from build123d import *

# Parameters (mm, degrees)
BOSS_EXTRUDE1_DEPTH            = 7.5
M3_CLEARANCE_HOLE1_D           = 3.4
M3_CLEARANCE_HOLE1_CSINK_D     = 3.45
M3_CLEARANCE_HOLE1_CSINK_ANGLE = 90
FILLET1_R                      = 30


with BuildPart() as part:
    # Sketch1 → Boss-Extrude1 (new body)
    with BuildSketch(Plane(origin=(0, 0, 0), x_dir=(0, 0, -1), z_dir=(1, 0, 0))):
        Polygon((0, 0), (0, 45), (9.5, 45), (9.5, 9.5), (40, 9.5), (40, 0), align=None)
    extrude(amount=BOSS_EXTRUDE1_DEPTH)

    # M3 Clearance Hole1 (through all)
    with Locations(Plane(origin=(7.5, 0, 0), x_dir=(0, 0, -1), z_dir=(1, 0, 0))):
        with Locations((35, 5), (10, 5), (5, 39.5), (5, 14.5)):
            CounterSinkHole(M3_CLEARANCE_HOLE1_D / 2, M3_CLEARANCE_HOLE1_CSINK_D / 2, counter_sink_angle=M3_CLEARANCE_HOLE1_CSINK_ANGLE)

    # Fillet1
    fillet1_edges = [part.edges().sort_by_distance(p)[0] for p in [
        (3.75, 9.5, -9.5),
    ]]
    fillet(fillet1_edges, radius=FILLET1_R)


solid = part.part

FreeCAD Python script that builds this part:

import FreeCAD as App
import Part
import Sketcher

V = App.Vector


def edges_at(feature, points):
    """Names of the edges that pass closest to the given points."""
    edges = feature.Shape.Edges
    near = lambda p: min(range(len(edges)), key=lambda i: edges[i].distToShape(Part.Vertex(*p))[0])
    return sorted({f"Edge{near(p) + 1}" for p in points})

doc = App.newDocument("Part")
body = doc.addObject("PartDesign::Body", "Body")

sketch1 = doc.addObject("Sketcher::SketchObject", "Sketch")
body.addObject(sketch1)
sketch1.AttachmentSupport = (doc.YZ_Plane, [""])
sketch1.MapMode = "FlatFace"
sketch1.addGeometry(Part.LineSegment(V(45, 0, 0), V(0, 0, 0)), False)
sketch1.addGeometry(Part.LineSegment(V(0, 0, 0), V(0, -40, 0)), False)
sketch1.addGeometry(Part.LineSegment(V(0, -40, 0), V(10, -40, 0)), False)
sketch1.addGeometry(Part.LineSegment(V(10, -40, 0), V(10, -10, 0)), False)
sketch1.addGeometry(Part.LineSegment(V(10, -10, 0), V(45, -10, 0)), False)
sketch1.addGeometry(Part.LineSegment(V(45, -10, 0), V(45, 0, 0)), False)
sketch1.addConstraint(Sketcher.Constraint("Coincident", 0, 2, 1, 1))
sketch1.addConstraint(Sketcher.Constraint("Coincident", 1, 2, 2, 1))
sketch1.addConstraint(Sketcher.Constraint("Coincident", 2, 2, 3, 1))
sketch1.addConstraint(Sketcher.Constraint("Coincident", 3, 2, 4, 1))
sketch1.addConstraint(Sketcher.Constraint("Coincident", 4, 2, 5, 1))
sketch1.addConstraint(Sketcher.Constraint("Coincident", 5, 2, 0, 1))
sketch1.addConstraint(Sketcher.Constraint("Horizontal", 0))
sketch1.addConstraint(Sketcher.Constraint("Vertical", 1))
sketch1.addConstraint(Sketcher.Constraint("Horizontal", 2))
sketch1.addConstraint(Sketcher.Constraint("Vertical", 3))
sketch1.addConstraint(Sketcher.Constraint("Horizontal", 4))
sketch1.addConstraint(Sketcher.Constraint("Vertical", 5))
sketch1.addConstraint(Sketcher.Constraint("Coincident", 0, 2, -1, 1))
sketch1.addConstraint(Sketcher.Constraint("Equal", 2, 5))
sketch1.addConstraint(Sketcher.Constraint("DistanceX", 0, 2, 0, 1, 45.0))
sketch1.addConstraint(Sketcher.Constraint("DistanceY", 1, 2, 1, 1, 40.0))
sketch1.addConstraint(Sketcher.Constraint("DistanceX", 2, 1, 2, 2, 9.5))
pad1 = doc.addObject("PartDesign::Pad", "Pad")
body.addObject(pad1)
pad1.Profile = sketch1
pad1.Length = 7.5

sketch2 = doc.addObject("Sketcher::SketchObject", "Sketch001")
body.addObject(sketch2)
sketch2.AttachmentSupport = (doc.YZ_Plane, [""])
sketch2.MapMode = "FlatFace"
sketch2.AttachmentOffset = App.Placement(V(0, 0, 7.5), App.Rotation())
sketch2.addGeometry(Part.Circle(V(5, -35, 0), V(0, 0, 1), 1.7), False)
sketch2.addGeometry(Part.Circle(V(5, -10, 0), V(0, 0, 1), 1.7), False)
sketch2.addGeometry(Part.Circle(V(39.5, -5, 0), V(0, 0, 1), 1.7), False)
sketch2.addGeometry(Part.Circle(V(14.5, -5, 0), V(0, 0, 1), 1.7), False)
sketch2.addConstraint(Sketcher.Constraint("Equal", 0, 1))
sketch2.addConstraint(Sketcher.Constraint("Equal", 1, 2))
sketch2.addConstraint(Sketcher.Constraint("Equal", 2, 3))
sketch2.addConstraint(Sketcher.Constraint("Horizontal", 2, 3, 3, 3))
sketch2.addConstraint(Sketcher.Constraint("Vertical", 0, 3, 1, 3))
sketch2.addConstraint(Sketcher.Constraint("Diameter", 0, 3.4))
sketch2.addConstraint(Sketcher.Constraint("DistanceX", -1, 1, 0, 3, 5.0))
sketch2.addConstraint(Sketcher.Constraint("DistanceY", 0, 3, -1, 1, 35.0))
sketch2.addConstraint(Sketcher.Constraint("DistanceY", 1, 3, -1, 1, 10.0))
sketch2.addConstraint(Sketcher.Constraint("DistanceY", 2, 3, -1, 1, 5.0))
sketch2.addConstraint(Sketcher.Constraint("DistanceX", 3, 3, 2, 3, 25.0))
sketch2.addConstraint(Sketcher.Constraint("DistanceX", -1, 1, 2, 3, 39.5))
doc.recompute()
hole = doc.addObject("PartDesign::Hole", "Hole")
body.addObject(hole)
hole.Profile = sketch2
hole.ThreadType = "None"
hole.Diameter = 3.4
hole.DepthType = "ThroughAll"
hole.HoleCutType = "Countersink"
hole.HoleCutDiameter = 3.45
hole.HoleCutCountersinkAngle = 90
doc.recompute()

fillet = doc.addObject("PartDesign::Fillet", "Fillet")
body.addObject(fillet)
fillet.Base = (hole, edges_at(hole, [(3.75, 9.5, -9.5)]))
fillet.Radius = 30

doc.recompute()
